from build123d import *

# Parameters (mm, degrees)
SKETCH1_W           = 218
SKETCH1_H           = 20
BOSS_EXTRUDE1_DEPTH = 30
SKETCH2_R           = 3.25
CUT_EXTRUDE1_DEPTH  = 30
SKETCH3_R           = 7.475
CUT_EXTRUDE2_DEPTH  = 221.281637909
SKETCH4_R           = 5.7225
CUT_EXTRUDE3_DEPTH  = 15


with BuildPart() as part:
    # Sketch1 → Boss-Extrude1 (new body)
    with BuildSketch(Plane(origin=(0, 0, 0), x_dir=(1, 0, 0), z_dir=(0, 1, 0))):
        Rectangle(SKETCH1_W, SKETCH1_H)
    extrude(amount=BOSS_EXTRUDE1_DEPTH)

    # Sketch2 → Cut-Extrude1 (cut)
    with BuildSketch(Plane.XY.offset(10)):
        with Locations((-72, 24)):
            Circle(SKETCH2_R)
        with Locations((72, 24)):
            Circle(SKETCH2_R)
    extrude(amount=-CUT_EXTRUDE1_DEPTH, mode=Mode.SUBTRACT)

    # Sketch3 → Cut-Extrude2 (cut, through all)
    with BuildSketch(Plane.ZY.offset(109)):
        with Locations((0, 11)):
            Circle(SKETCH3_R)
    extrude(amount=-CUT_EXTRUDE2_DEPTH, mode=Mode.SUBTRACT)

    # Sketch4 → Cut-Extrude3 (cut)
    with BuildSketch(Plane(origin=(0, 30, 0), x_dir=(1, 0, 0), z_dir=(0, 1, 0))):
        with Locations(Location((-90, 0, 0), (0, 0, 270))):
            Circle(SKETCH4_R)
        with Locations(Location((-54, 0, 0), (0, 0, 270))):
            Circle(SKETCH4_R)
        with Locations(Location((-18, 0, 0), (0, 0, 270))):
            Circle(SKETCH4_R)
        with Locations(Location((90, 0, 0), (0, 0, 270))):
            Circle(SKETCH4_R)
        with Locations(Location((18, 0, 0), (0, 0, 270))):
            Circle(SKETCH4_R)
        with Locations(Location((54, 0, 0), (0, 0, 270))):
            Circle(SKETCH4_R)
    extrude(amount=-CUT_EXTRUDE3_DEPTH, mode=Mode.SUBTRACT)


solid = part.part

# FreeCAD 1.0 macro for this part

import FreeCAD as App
import Part
import Sketcher
from FreeCAD import Vector

doc = App.newDocument("Part")
params = doc.addObject("Spreadsheet::Sheet", "Params")
for row, (alias, value) in enumerate([
    ("sketch1_width", "218 mm"),
    ("sketch1_height", "20 mm"),
    ("pad1_length", "30 mm"),
    ("sketch2_diameter", "6.5 mm"),
    ("pocket1_length", "30 mm"),
    ("sketch3_diameter", "14.95 mm"),
    ("pocket3_length", "15 mm"),
], start=1):
    params.set(f"A{row}", alias)
    params.set(f"B{row}", "=" + value)
    params.setAlias(f"B{row}", alias)

body = doc.addObject("PartDesign::Body", "Body")

sketch1 = body.newObject("Sketcher::SketchObject", "Sketch")
sketch1.AttachmentSupport = (doc.getObject("XZ_Plane"), [""])
sketch1.MapMode = "FlatFace"
sketch1.addGeometry(Part.LineSegment(Vector(-109, -10, 0), Vector(-109, 10, 0)), False)
sketch1.addGeometry(Part.LineSegment(Vector(-109, 10, 0), Vector(109, 10, 0)), False)
sketch1.addGeometry(Part.LineSegment(Vector(109, 10, 0), Vector(109, -10, 0)), False)
sketch1.addGeometry(Part.LineSegment(Vector(109, -10, 0), Vector(-109, -10, 0)), False)
sketch1.addConstraint(Sketcher.Constraint("Coincident", 0, 2, 1, 1))
sketch1.addConstraint(Sketcher.Constraint("Coincident", 1, 2, 2, 1))
sketch1.addConstraint(Sketcher.Constraint("Coincident", 2, 2, 3, 1))
sketch1.addConstraint(Sketcher.Constraint("Coincident", 3, 2, 0, 1))
sketch1.addConstraint(Sketcher.Constraint("Vertical", 0))
sketch1.addConstraint(Sketcher.Constraint("Horizontal", 1))
sketch1.addConstraint(Sketcher.Constraint("Vertical", 2))
sketch1.addConstraint(Sketcher.Constraint("Horizontal", 3))
sketch1.addConstraint(Sketcher.Constraint("Symmetric", 0, 2, 2, 2, -1, 1))
sketch1.addConstraint(Sketcher.Constraint("DistanceX", 1, 1, 1, 2, 218.0))
sketch1.addConstraint(Sketcher.Constraint("DistanceY", 0, 1, 0, 2, 20.0))
sketch1.setExpression("Constraints[9]", "Params.sketch1_width")
sketch1.setExpression("Constraints[10]", "Params.sketch1_height")
pad1 = body.newObject("PartDesign::Pad", "Pad")
pad1.Profile = sketch1
pad1.setExpression("Length", "Params.pad1_length")
pad1.Reversed = True

sketch2 = body.newObject("Sketcher::SketchObject", "Sketch001")
sketch2.AttachmentSupport = (doc.getObject("XY_Plane"), [""])
sketch2.MapMode = "FlatFace"
sketch2.AttachmentOffset = App.Placement(Vector(0, 0, 10), App.Rotation())
sketch2.addGeometry(Part.Circle(Vector(-72, 24, 0), Vector(0, 0, 1), 3.2), False)
sketch2.addGeometry(Part.Circle(Vector(72, 24, 0), Vector(0, 0, 1), 3.2), False)
sketch2.addConstraint(Sketcher.Constraint("Equal", 0, 1))
sketch2.addConstraint(Sketcher.Constraint("Symmetric", 0, 3, 1, 3, -2))
sketch2.addConstraint(Sketcher.Constraint("Diameter", 0, 6.5))
sketch2.addConstraint(Sketcher.Constraint("DistanceX", 0, 3, -1, 1, 72.0))
sketch2.addConstraint(Sketcher.Constraint("DistanceY", -1, 1, 0, 3, 24.0))
sketch2.setExpression("Constraints[2]", "Params.sketch2_diameter")
pocket1 = body.newObject("PartDesign::Pocket", "Pocket")
pocket1.Profile = sketch2
pocket1.setExpression("Length", "Params.pocket1_length")

sketch3 = body.newObject("Sketcher::SketchObject", "Sketch002")
sketch3.AttachmentSupport = (doc.getObject("YZ_Plane"), [""])
sketch3.MapMode = "FlatFace"
sketch3.AttachmentOffset = App.Placement(Vector(0, 0, -109), App.Rotation())
sketch3.addGeometry(Part.Circle(Vector(11, 0, 0), Vector(0, 0, 1), 7), False)
sketch3.addConstraint(Sketcher.Constraint("PointOnObject", 0, 3, -1))
sketch3.addConstraint(Sketcher.Constraint("Diameter", 0, 14.95))
sketch3.addConstraint(Sketcher.Constraint("DistanceX", -1, 1, 0, 3, 11.0))
sketch3.setExpression("Constraints[1]", "Params.sketch3_diameter")
pocket2 = body.newObject("PartDesign::Pocket", "Pocket001")
pocket2.Profile = sketch3
pocket2.Type = "ThroughAll"
pocket2.Reversed = True

sketch4 = body.newObject("Sketcher::SketchObject", "Sketch003")
sketch4.AttachmentSupport = (doc.getObject("XZ_Plane"), [""])
sketch4.MapMode = "FlatFace"
sketch4.AttachmentOffset = App.Placement(Vector(0, 0, -30), App.Rotation())
sketch4.addGeometry(Part.Circle(Vector(-90, 0, 0), Vector(0, 0, 1), 6), False)
sketch4.addGeometry(Part.Circle(Vector(-54, 0, 0), Vector(0, 0, 1), 6), False)
sketch4.addGeometry(Part.Circle(Vector(-18, 0, 0), Vector(0, 0, 1), 6), False)
sketch4.addGeometry(Part.Circle(Vector(90, 0, 0), Vector(0, 0, 1), 6), False)
sketch4.addGeometry(Part.Circle(Vector(18, 0, 0), Vector(0, 0, 1), 6), False)
sketch4.addGeometry(Part.Circle(Vector(54, 0, 0), Vector(0, 0, 1), 6), False)
sketch4.addConstraint(Sketcher.Constraint("Equal", 0, 1))
sketch4.addConstraint(Sketcher.Constraint("Equal", 1, 2))
sketch4.addConstraint(Sketcher.Constraint("Equal", 2, 3))
sketch4.addConstraint(Sketcher.Constraint("Equal", 3, 4))
sketch4.addConstraint(Sketcher.Constraint("Equal", 4, 5))
sketch4.addConstraint(Sketcher.Constraint("Symmetric", 0, 3, 3, 3, -1, 1))
sketch4.addConstraint(Sketcher.Constraint("Symmetric", 2, 3, 4, 3, -1, 1))
sketch4.addConstraint(Sketcher.Constraint("Symmetric", 1, 3, 5, 3, -1, 1))
sketch4.addConstraint(Sketcher.Constraint("PointOnObject", 0, 3, -1))
sketch4.addConstraint(Sketcher.Constraint("PointOnObject", 1, 3, -1))
sketch4.addConstraint(Sketcher.Constraint("PointOnObject", 2, 3, -1))
sketch4.addConstraint(Sketcher.Constraint("Diameter", 0, 11.445))
sketch4.addConstraint(Sketcher.Constraint("DistanceX", 0, 3, -1, 1, 90.0))
sketch4.addConstraint(Sketcher.Constraint("DistanceX", 1, 3, -1, 1, 54.0))
sketch4.addConstraint(Sketcher.Constraint("DistanceX", 2, 3, -1, 1, 18.0))
pocket3 = body.newObject("PartDesign::Pocket", "Pocket002")
pocket3.Profile = sketch4
pocket3.setExpression("Length", "Params.pocket3_length")
pocket3.Reversed = True

doc.recompute()
